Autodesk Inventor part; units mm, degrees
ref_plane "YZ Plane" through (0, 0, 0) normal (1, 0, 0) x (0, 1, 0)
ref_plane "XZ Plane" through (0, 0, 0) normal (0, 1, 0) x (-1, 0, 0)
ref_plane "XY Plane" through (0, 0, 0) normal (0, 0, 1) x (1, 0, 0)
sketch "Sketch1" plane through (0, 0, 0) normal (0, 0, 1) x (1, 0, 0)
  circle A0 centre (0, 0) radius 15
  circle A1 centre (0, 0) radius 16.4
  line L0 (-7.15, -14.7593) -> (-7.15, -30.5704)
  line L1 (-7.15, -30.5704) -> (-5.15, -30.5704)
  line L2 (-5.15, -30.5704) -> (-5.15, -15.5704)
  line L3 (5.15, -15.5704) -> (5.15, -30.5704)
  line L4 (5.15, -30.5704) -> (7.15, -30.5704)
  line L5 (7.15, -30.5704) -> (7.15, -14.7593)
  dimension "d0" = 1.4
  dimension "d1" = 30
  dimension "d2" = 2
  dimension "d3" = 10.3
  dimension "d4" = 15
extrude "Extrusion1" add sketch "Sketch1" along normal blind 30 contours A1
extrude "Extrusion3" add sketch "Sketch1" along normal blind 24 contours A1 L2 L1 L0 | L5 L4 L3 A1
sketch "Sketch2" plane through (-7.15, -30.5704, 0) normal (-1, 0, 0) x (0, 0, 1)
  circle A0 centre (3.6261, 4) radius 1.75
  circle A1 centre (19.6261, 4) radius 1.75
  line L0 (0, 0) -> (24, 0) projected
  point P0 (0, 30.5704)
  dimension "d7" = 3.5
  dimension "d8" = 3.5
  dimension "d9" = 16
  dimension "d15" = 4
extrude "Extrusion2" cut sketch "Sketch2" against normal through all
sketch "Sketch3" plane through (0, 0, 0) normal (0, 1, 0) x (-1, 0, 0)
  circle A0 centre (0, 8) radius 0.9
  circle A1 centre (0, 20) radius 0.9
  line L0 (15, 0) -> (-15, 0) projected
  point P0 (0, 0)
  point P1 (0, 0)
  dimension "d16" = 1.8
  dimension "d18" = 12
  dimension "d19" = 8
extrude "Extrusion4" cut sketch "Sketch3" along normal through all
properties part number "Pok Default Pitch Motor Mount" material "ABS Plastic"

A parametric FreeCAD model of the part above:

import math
import FreeCAD as App
import Part
import Sketcher
from FreeCAD import Vector
Q = App.Units.Quantity

doc = App.newDocument("Part")
body = doc.addObject("PartDesign::Body", "Body")

# Sketch on XY plane
sketch1 = body.newObject("Sketcher::SketchObject", "Sketch")
sketch1.AttachmentSupport = (doc.getObject("XY_Plane"), [""])
sketch1.MapMode = "FlatFace"
sketch1.addGeometry([
    Part.Circle(Vector(0, 0, 0), Vector(0, 0, 1), 16),
    Part.Circle(Vector(0, 0, 0), Vector(0, 0, 1), 15),
], False)
sketch1.addConstraint([
    Sketcher.Constraint("Coincident", 0, 3, -1, 1),
    Sketcher.Constraint("Coincident", 1, 3, -1, 1),
    Sketcher.Constraint("Diameter", 1, Q("30 mm")),
    Sketcher.Constraint("Diameter", 0, Q("32.8 mm")),
])
pad1 = body.newObject("PartDesign::Pad", "Pad")
pad1.Profile = sketch1
pad1.Length = 30

# Sketch on XY plane
sketch2 = body.newObject("Sketcher::SketchObject", "Sketch001")
sketch2.AttachmentSupport = (doc.getObject("XY_Plane"), [""])
sketch2.MapMode = "FlatFace"
sketch2.addGeometry([
    Part.ArcOfCircle(Part.Circle(Vector(0, 0, 0), Vector(0, 0, 1), 16.4), math.radians(-115.85), math.radians(-108.3)),  # 0
    Part.LineSegment(Vector(-7.2, -14.8, 0), Vector(-7.2, -30.6, 0)),  # 1
    Part.LineSegment(Vector(-7.2, -30.6, 0), Vector(-5.2, -30.6, 0)),  # 2
    Part.LineSegment(Vector(-5.2, -30.6, 0), Vector(-5.2, -15.6, 0)),  # 3
    Part.LineSegment(Vector(7.2, -30.6, 0), Vector(7.2, -14.8, 0)),  # 4
    Part.ArcOfCircle(Part.Circle(Vector(0, 0, 0), Vector(0, 0, 1), 16.4), math.radians(-71.7), math.radians(-64.15)),  # 5
    Part.LineSegment(Vector(5.2, -15.6, 0), Vector(5.2, -30.6, 0)),  # 6
    Part.LineSegment(Vector(5.2, -30.6, 0), Vector(7.2, -30.6, 0)),  # 7
], False)
sketch2.addConstraint([
    Sketcher.Constraint("Coincident", 0, 1, 1, 1),
    Sketcher.Constraint("Coincident", 1, 2, 2, 1),
    Sketcher.Constraint("Coincident", 2, 2, 3, 1),
    Sketcher.Constraint("Coincident", 3, 2, 0, 2),
    Sketcher.Constraint("Coincident", 4, 2, 5, 2),
    Sketcher.Constraint("Coincident", 5, 1, 6, 1),
    Sketcher.Constraint("Coincident", 6, 2, 7, 1),
    Sketcher.Constraint("Coincident", 7, 2, 4, 1),
    Sketcher.Constraint("Vertical", 1),
    Sketcher.Constraint("Horizontal", 2),
    Sketcher.Constraint("Vertical", 3),
    Sketcher.Constraint("Vertical", 4),
    Sketcher.Constraint("Vertical", 6),
    Sketcher.Constraint("Horizontal", 7),
    Sketcher.Constraint("Coincident", 0, 3, -1, 1),
    Sketcher.Constraint("Coincident", 5, 3, -1, 1),
    Sketcher.Constraint("Equal", 0, 5),
    Sketcher.Constraint("Symmetric", 2, 2, 6, 2, -2),
    Sketcher.Constraint("Horizontal", 0, 1, 4, 2),
    Sketcher.Constraint("DistanceX", 2, 1, 2, 2, Q("2 mm")),
    Sketcher.Constraint("DistanceY", 3, 1, 3, 2, Q("15 mm")),
    Sketcher.Constraint("Radius", 0, Q("16.4 mm")),
    Sketcher.Constraint("DistanceX", 3, 2, 5, 1, Q("10.3 mm")),
])
pad2 = body.newObject("PartDesign::Pad", "Pad001")
pad2.Profile = sketch2
pad2.Length = 24

# Sketch on YZ plane
sketch3 = body.newObject("Sketcher::SketchObject", "Sketch002")
sketch3.AttachmentSupport = (doc.getObject("YZ_Plane"), [""])
sketch3.MapMode = "FlatFace"
sketch3.AttachmentOffset = App.Placement(Vector(0, 0, -7.15), App.Rotation())
sketch3.addGeometry([
    Part.Circle(Vector(-26.6, 3.6, 0), Vector(0, 0, 1), 1.8),
    Part.Circle(Vector(-26.6, 19.6, 0), Vector(0, 0, 1), 1.8),
], False)
sketch3.addConstraint([
    Sketcher.Constraint("Equal", 0, 1),
    Sketcher.Constraint("Vertical", 0, 3, 1, 3),
    Sketcher.Constraint("Diameter", 0, Q("3.5 mm")),
    Sketcher.Constraint("DistanceY", 0, 3, 1, 3, Q("16 mm")),
    Sketcher.Constraint("DistanceY", -1, 1, 0, 3, Q("3.626 mm")),
    Sketcher.Constraint("DistanceX", 0, 3, -1, 1, Q("26.5704 mm")),
])
pocket1 = body.newObject("PartDesign::Pocket", "Pocket")
pocket1.Profile = sketch3
pocket1.Type = "ThroughAll"
pocket1.Reversed = True

# Sketch on XZ plane
sketch4 = body.newObject("Sketcher::SketchObject", "Sketch003")
sketch4.AttachmentSupport = (doc.getObject("XZ_Plane"), [""])
sketch4.MapMode = "FlatFace"
sketch4.addGeometry([
    Part.Circle(Vector(0, 8, 0), Vector(0, 0, 1), 0.9),
    Part.Circle(Vector(0, 20, 0), Vector(0, 0, 1), 0.9),
], False)
sketch4.addConstraint([
    Sketcher.Constraint("Equal", 0, 1),
    Sketcher.Constraint("PointOnObject", 0, 3, -2),
    Sketcher.Constraint("PointOnObject", 1, 3, -2),
    Sketcher.Constraint("Diameter", 0, Q("1.8 mm")),
    Sketcher.Constraint("DistanceY", -1, 1, 0, 3, Q("8 mm")),
    Sketcher.Constraint("DistanceY", 0, 3, 1, 3, Q("12 mm")),
])
pocket2 = body.newObject("PartDesign::Pocket", "Pocket001")
pocket2.Profile = sketch4
pocket2.Type = "ThroughAll"

doc.recompute()
